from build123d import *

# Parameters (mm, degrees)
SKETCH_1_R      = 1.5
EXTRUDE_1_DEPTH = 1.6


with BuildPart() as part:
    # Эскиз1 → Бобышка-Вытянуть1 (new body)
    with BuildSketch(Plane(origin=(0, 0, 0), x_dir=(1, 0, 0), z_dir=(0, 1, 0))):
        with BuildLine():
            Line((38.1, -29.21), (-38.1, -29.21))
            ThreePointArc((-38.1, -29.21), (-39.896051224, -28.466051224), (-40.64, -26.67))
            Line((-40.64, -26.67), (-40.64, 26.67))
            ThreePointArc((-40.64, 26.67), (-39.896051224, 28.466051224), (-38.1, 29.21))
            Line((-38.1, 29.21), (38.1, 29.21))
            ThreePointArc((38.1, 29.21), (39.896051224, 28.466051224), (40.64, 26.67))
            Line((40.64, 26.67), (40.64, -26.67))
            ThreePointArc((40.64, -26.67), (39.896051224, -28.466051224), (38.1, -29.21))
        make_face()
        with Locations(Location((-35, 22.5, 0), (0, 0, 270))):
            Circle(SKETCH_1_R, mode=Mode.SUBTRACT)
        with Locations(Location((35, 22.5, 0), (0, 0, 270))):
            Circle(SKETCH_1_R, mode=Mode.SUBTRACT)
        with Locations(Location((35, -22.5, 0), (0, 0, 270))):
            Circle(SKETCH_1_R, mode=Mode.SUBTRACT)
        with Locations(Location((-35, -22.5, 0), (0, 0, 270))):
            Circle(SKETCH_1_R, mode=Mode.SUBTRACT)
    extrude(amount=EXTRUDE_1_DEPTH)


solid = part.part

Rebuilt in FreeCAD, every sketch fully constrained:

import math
import FreeCAD as App
import Part
import Sketcher
from FreeCAD import Vector
Q = App.Units.Quantity

doc = App.newDocument("Part")
body = doc.addObject("PartDesign::Body", "Body")

# Sketch on XZ plane
sketch1 = doc.addObject("Sketcher::SketchObject", "Sketch")
body.addObject(sketch1)
sketch1.AttachmentSupport = (doc.XZ_Plane, [""])
sketch1.MapMode = "FlatFace"
sketch1.addGeometry([
    Part.LineSegment(Vector(-38.1, 29.2, 0), Vector(38.1, 29.2, 0)),  # 0
    Part.ArcOfCircle(Part.Circle(Vector(38.1, 26.7, 0), Vector(0, 0, 1), 2.5), math.radians(0), math.radians(90)),  # 1
    Part.LineSegment(Vector(40.6, 26.7, 0), Vector(40.6, -26.7, 0)),  # 2
    Part.ArcOfCircle(Part.Circle(Vector(38.1, -26.7, 0), Vector(0, 0, 1), 2.5), math.radians(-90), math.radians(0)),  # 3
    Part.LineSegment(Vector(38.1, -29.2, 0), Vector(-38.1, -29.2, 0)),  # 4
    Part.ArcOfCircle(Part.Circle(Vector(-38.1, -26.7, 0), Vector(0, 0, 1), 2.5), math.radians(-180), math.radians(-90)),  # 5
    Part.LineSegment(Vector(-40.6, -26.7, 0), Vector(-40.6, 26.7, 0)),  # 6
    Part.ArcOfCircle(Part.Circle(Vector(-38.1, 26.7, 0), Vector(0, 0, 1), 2.5), math.radians(90), math.radians(180)),  # 7
    Part.Circle(Vector(35, 22.5, 0), Vector(0, 0, 1), 1.5),  # 8
    Part.Circle(Vector(-35, 22.5, 0), Vector(0, 0, 1), 1.5),  # 9
    Part.Circle(Vector(35, -22.5, 0), Vector(0, 0, 1), 1.5),  # 10
    Part.Circle(Vector(-35, -22.5, 0), Vector(0, 0, 1), 1.5),  # 11
], False)
sketch1.addConstraint([
    Sketcher.Constraint("Tangent", 0, 2, 1, 2),
    Sketcher.Constraint("Tangent", 1, 1, 2, 1),
    Sketcher.Constraint("Tangent", 2, 2, 3, 2),
    Sketcher.Constraint("Tangent", 3, 1, 4, 1),
    Sketcher.Constraint("Tangent", 4, 2, 5, 2),
    Sketcher.Constraint("Tangent", 5, 1, 6, 1),
    Sketcher.Constraint("Tangent", 6, 2, 7, 2),
    Sketcher.Constraint("Tangent", 7, 1, 0, 1),
    Sketcher.Constraint("Horizontal", 0),
    Sketcher.Constraint("Vertical", 2),
    Sketcher.Constraint("Horizontal", 4),
    Sketcher.Constraint("Vertical", 6),
    Sketcher.Constraint("Equal", 1, 3),
    Sketcher.Constraint("Equal", 3, 5),
    Sketcher.Constraint("Equal", 5, 7),
    Sketcher.Constraint("Equal", 8, 9),
    Sketcher.Constraint("Equal", 9, 10),
    Sketcher.Constraint("Equal", 10, 11),
    Sketcher.Constraint("Symmetric", 1, 3, 5, 3, -1, 1),
    Sketcher.Constraint("Symmetric", 9, 3, 10, 3, -1, 1),
    Sketcher.Constraint("Symmetric", 8, 3, 11, 3, -1, 1),
    Sketcher.Constraint("Symmetric", 8, 3, 9, 3, -2),
    Sketcher.Constraint("Radius", 1, Q("0.1 in")),
    Sketcher.Constraint("DistanceX", 0, 1, 0, 2, Q("3 in")),
    Sketcher.Constraint("DistanceY", 2, 2, 2, 1, Q("2.1 in")),
    Sketcher.Constraint("Diameter", 8, Q("3 mm")),
    Sketcher.Constraint("DistanceX", -1, 1, 8, 3, Q("35 mm")),
    Sketcher.Constraint("DistanceY", -1, 1, 8, 3, Q("22.5 mm")),
])
pad1 = doc.addObject("PartDesign::Pad", "Pad")
body.addObject(pad1)
pad1.Profile = sketch1
pad1.Length = 1.6
pad1.Reversed = True

doc.recompute()
